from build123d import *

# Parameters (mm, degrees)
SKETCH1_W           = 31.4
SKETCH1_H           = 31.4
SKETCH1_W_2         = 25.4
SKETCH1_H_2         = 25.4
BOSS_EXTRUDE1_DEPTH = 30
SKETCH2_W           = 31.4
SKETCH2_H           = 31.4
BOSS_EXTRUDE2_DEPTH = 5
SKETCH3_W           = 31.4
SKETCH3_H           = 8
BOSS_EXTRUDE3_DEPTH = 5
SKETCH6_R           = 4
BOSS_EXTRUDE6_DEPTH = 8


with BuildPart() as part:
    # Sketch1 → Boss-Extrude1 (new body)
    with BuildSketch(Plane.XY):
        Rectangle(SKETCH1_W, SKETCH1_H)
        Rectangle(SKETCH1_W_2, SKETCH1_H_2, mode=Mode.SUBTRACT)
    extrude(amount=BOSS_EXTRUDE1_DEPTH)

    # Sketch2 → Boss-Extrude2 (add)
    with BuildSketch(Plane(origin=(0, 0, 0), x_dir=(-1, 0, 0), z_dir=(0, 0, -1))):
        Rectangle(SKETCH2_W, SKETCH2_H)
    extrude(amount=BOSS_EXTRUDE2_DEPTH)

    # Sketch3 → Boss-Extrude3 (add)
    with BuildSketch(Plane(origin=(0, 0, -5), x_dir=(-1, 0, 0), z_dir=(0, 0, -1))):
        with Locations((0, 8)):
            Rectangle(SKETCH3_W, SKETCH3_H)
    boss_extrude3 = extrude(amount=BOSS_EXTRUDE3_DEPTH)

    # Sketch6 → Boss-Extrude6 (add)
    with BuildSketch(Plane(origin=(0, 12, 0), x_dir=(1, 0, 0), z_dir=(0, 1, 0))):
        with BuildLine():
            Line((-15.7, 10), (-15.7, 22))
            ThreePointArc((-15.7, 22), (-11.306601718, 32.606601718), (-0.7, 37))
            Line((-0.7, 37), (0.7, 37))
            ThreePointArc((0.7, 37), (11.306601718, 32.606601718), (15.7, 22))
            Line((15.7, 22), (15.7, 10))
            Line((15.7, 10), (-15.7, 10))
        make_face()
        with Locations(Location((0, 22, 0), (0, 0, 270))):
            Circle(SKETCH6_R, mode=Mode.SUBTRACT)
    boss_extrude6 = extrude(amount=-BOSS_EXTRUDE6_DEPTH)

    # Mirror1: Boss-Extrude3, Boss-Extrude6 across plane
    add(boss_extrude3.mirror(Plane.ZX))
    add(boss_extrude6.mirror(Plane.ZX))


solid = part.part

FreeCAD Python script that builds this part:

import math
import FreeCAD as App
import Part
import Sketcher
from FreeCAD import Vector
Q = App.Units.Quantity


def add_polygon(sketch, points):
    """Adds a closed chain of lines whose ends are joined by coincident constraints."""
    first, n = sketch.GeometryCount, len(points)
    for a, b in zip(points, points[1:] + points[:1]):
        sketch.addGeometry(Part.LineSegment(App.Vector(*a, 0), App.Vector(*b, 0)), False)
    for i in range(n):
        sketch.addConstraint(Sketcher.Constraint("Coincident", first + i, 2, first + (i + 1) % n, 1))

doc = App.newDocument("Part")
body = doc.addObject("PartDesign::Body", "Body")

# Sketch on XY plane
sketch1 = body.newObject("Sketcher::SketchObject", "Sketch")
sketch1.AttachmentSupport = (doc.getObject("XY_Plane"), [""])
sketch1.MapMode = "FlatFace"
add_polygon(sketch1, [(-16, 16), (-16, -16), (16, -16), (16, 16)])  # lines 0-3
add_polygon(sketch1, [(13, -13), (-13, -13), (-13, 13), (13, 13)])  # lines 4-7
sketch1.addConstraint([
    Sketcher.Constraint("Vertical", 0),
    Sketcher.Constraint("Horizontal", 1),
    Sketcher.Constraint("Vertical", 2),
    Sketcher.Constraint("Horizontal", 3),
    Sketcher.Constraint("Horizontal", 4),
    Sketcher.Constraint("Vertical", 5),
    Sketcher.Constraint("Horizontal", 6),
    Sketcher.Constraint("Vertical", 7),
    Sketcher.Constraint("Symmetric", 0, 2, 2, 2, -1, 1),
    Sketcher.Constraint("Symmetric", 4, 2, 6, 2, -1, 1),
    Sketcher.Constraint("Equal", 3, 0),
    Sketcher.Constraint("Equal", 6, 5),
    Sketcher.Constraint("DistanceX", 1, 1, 1, 2, Q("31.4 mm")),
    Sketcher.Constraint("DistanceX", 4, 2, 4, 1, Q("25.4 mm")),
])
pad1 = body.newObject("PartDesign::Pad", "Pad")
pad1.Profile = sketch1
pad1.Length = 30

# Sketch on XY plane
sketch2 = body.newObject("Sketcher::SketchObject", "Sketch001")
sketch2.AttachmentSupport = (doc.getObject("XY_Plane"), [""])
sketch2.MapMode = "FlatFace"
add_polygon(sketch2, [(16, 16), (16, -16), (-16, -16), (-16, 16)])  # lines 0-3
sketch2.addConstraint([
    Sketcher.Constraint("Vertical", 0),
    Sketcher.Constraint("Horizontal", 1),
    Sketcher.Constraint("Vertical", 2),
    Sketcher.Constraint("Horizontal", 3),
    Sketcher.Constraint("Symmetric", 0, 2, 2, 2, -1, 1),
    Sketcher.Constraint("Equal", 3, 0),
    Sketcher.Constraint("DistanceX", 1, 2, 1, 1, Q("31.4 mm")),
])
pad2 = body.newObject("PartDesign::Pad", "Pad001")
pad2.Profile = sketch2
pad2.Length = 5
pad2.Reversed = True

# Sketch on XY plane
sketch3 = body.newObject("Sketcher::SketchObject", "Sketch002")
sketch3.AttachmentSupport = (doc.getObject("XY_Plane"), [""])
sketch3.MapMode = "FlatFace"
sketch3.AttachmentOffset = App.Placement(Vector(0, 0, -5), App.Rotation())
add_polygon(sketch3, [(16, 12), (16, 4), (-16, 4), (-16, 12)])  # lines 0-3
sketch3.addConstraint([
    Sketcher.Constraint("Vertical", 0),
    Sketcher.Constraint("Horizontal", 1),
    Sketcher.Constraint("Vertical", 2),
    Sketcher.Constraint("Horizontal", 3),
    Sketcher.Constraint("DistanceY", 0, 2, 0, 1, Q("8 mm")),
    Sketcher.Constraint("DistanceX", 1, 2, 1, 1, Q("31.4 mm")),
    Sketcher.Constraint("DistanceY", -1, 1, 0, 2, Q("4 mm")),
    Sketcher.Constraint("DistanceX", -1, 1, 0, 2, Q("15.7 mm")),
])
pad3 = body.newObject("PartDesign::Pad", "Pad002")
pad3.Profile = sketch3
pad3.Length = 5
pad3.Reversed = True

# Sketch on XZ plane
sketch4 = body.newObject("Sketcher::SketchObject", "Sketch003")
sketch4.AttachmentSupport = (doc.getObject("XZ_Plane"), [""])
sketch4.MapMode = "FlatFace"
sketch4.AttachmentOffset = App.Placement(Vector(0, 0, -12), App.Rotation())
sketch4.addGeometry([
    Part.LineSegment(Vector(-15.7, -22, 0), Vector(-15.7, -10, 0)),  # 0
    Part.LineSegment(Vector(-15.7, -10, 0), Vector(15.7, -10, 0)),  # 1
    Part.LineSegment(Vector(15.7, -10, 0), Vector(15.7, -22, 0)),  # 2
    Part.ArcOfCircle(Part.Circle(Vector(0.7, -22, 0), Vector(0, 0, 1), 15), math.radians(-90), math.radians(0)),  # 3
    Part.LineSegment(Vector(0.7, -37, 0), Vector(-0.7, -37, 0)),  # 4
    Part.ArcOfCircle(Part.Circle(Vector(-0.7, -22, 0), Vector(0, 0, 1), 15), math.radians(180), math.radians(270)),  # 5
    Part.Circle(Vector(0, -22, 0), Vector(0, 0, 1), 4),  # 6
], False)
sketch4.addConstraint([
    Sketcher.Constraint("Coincident", 0, 2, 1, 1),
    Sketcher.Constraint("Coincident", 1, 2, 2, 1),
    Sketcher.Constraint("Tangent", 2, 2, 3, 2),
    Sketcher.Constraint("Tangent", 3, 1, 4, 1),
    Sketcher.Constraint("Tangent", 4, 2, 5, 2),
    Sketcher.Constraint("Tangent", 5, 1, 0, 1),
    Sketcher.Constraint("Vertical", 0),
    Sketcher.Constraint("Horizontal", 1),
    Sketcher.Constraint("Vertical", 2),
    Sketcher.Constraint("Horizontal", 4),
    Sketcher.Constraint("Equal", 3, 5),
    Sketcher.Constraint("PointOnObject", 6, 3, -2),
    Sketcher.Constraint("Horizontal", 5, 3, 6, 3),
    Sketcher.Constraint("Diameter", 6, Q("8 mm")),
    Sketcher.Constraint("Radius", 3, Q("15 mm")),
    Sketcher.Constraint("DistanceY", 0, 1, 0, 2, Q("12 mm")),
    Sketcher.Constraint("DistanceX", 1, 1, 1, 2, Q("31.4 mm")),
    Sketcher.Constraint("DistanceY", 3, 3, -1, 1, Q("22 mm")),
    Sketcher.Constraint("DistanceX", -1, 1, 3, 3, Q("0.7 mm")),
])
pad4 = body.newObject("PartDesign::Pad", "Pad003")
pad4.Profile = sketch4
pad4.Length = 8
doc.recompute()

mirrored = body.newObject("PartDesign::Mirrored", "Mirrored")
mirrored.Originals = [pad3, pad4]
mirrored.MirrorPlane = (doc.getObject("XZ_Plane"), [""])
body.Tip = mirrored

doc.recompute()
